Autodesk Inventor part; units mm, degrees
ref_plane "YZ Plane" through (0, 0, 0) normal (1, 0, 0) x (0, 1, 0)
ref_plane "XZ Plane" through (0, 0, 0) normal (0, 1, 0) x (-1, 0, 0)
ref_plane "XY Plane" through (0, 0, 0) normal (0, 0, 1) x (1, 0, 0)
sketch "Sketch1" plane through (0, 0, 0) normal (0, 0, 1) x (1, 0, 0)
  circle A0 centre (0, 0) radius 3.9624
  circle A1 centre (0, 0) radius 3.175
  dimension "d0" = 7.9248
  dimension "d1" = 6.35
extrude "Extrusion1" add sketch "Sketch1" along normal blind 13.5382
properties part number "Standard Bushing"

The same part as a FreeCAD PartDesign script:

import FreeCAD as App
import Part
import Sketcher
from FreeCAD import Vector
Q = App.Units.Quantity

doc = App.newDocument("Part")
params = doc.addObject("Spreadsheet::Sheet", "Params")
for row, (alias, value) in enumerate([
    ("sketch1_diameter", "0.25 in"),
    ("sketch1_diameter2", "0.312 in"),
    ("pad1_length", "0.533 in"),
], start=1):
    params.set(f"A{row}", alias)
    params.set(f"B{row}", "=" + value)
    params.setAlias(f"B{row}", alias)

body = doc.addObject("PartDesign::Body", "Body")

sketch1 = doc.addObject("Sketcher::SketchObject", "Sketch")
body.addObject(sketch1)
sketch1.AttachmentSupport = (doc.XY_Plane, [""])
sketch1.MapMode = "FlatFace"
sketch1.addGeometry([
    Part.Circle(Vector(0, 0, 0), Vector(0, 0, 1), 3.9624),
    Part.Circle(Vector(0, 0, 0), Vector(0, 0, 1), 3.175),
], False)
sketch1.addConstraint([
    Sketcher.Constraint("Coincident", 0, 3, -1, 1),
    Sketcher.Constraint("Coincident", 1, 3, -1, 1),
    Sketcher.Constraint("Diameter", 1, Q("0.25 in")),
    Sketcher.Constraint("Diameter", 0, Q("0.312 in")),
])
sketch1.setExpression("Constraints[2]", "Params.sketch1_diameter")
sketch1.setExpression("Constraints[3]", "Params.sketch1_diameter2")
pad1 = doc.addObject("PartDesign::Pad", "Pad")
body.addObject(pad1)
pad1.Profile = sketch1
pad1.setExpression("Length", "Params.pad1_length")

doc.recompute()
